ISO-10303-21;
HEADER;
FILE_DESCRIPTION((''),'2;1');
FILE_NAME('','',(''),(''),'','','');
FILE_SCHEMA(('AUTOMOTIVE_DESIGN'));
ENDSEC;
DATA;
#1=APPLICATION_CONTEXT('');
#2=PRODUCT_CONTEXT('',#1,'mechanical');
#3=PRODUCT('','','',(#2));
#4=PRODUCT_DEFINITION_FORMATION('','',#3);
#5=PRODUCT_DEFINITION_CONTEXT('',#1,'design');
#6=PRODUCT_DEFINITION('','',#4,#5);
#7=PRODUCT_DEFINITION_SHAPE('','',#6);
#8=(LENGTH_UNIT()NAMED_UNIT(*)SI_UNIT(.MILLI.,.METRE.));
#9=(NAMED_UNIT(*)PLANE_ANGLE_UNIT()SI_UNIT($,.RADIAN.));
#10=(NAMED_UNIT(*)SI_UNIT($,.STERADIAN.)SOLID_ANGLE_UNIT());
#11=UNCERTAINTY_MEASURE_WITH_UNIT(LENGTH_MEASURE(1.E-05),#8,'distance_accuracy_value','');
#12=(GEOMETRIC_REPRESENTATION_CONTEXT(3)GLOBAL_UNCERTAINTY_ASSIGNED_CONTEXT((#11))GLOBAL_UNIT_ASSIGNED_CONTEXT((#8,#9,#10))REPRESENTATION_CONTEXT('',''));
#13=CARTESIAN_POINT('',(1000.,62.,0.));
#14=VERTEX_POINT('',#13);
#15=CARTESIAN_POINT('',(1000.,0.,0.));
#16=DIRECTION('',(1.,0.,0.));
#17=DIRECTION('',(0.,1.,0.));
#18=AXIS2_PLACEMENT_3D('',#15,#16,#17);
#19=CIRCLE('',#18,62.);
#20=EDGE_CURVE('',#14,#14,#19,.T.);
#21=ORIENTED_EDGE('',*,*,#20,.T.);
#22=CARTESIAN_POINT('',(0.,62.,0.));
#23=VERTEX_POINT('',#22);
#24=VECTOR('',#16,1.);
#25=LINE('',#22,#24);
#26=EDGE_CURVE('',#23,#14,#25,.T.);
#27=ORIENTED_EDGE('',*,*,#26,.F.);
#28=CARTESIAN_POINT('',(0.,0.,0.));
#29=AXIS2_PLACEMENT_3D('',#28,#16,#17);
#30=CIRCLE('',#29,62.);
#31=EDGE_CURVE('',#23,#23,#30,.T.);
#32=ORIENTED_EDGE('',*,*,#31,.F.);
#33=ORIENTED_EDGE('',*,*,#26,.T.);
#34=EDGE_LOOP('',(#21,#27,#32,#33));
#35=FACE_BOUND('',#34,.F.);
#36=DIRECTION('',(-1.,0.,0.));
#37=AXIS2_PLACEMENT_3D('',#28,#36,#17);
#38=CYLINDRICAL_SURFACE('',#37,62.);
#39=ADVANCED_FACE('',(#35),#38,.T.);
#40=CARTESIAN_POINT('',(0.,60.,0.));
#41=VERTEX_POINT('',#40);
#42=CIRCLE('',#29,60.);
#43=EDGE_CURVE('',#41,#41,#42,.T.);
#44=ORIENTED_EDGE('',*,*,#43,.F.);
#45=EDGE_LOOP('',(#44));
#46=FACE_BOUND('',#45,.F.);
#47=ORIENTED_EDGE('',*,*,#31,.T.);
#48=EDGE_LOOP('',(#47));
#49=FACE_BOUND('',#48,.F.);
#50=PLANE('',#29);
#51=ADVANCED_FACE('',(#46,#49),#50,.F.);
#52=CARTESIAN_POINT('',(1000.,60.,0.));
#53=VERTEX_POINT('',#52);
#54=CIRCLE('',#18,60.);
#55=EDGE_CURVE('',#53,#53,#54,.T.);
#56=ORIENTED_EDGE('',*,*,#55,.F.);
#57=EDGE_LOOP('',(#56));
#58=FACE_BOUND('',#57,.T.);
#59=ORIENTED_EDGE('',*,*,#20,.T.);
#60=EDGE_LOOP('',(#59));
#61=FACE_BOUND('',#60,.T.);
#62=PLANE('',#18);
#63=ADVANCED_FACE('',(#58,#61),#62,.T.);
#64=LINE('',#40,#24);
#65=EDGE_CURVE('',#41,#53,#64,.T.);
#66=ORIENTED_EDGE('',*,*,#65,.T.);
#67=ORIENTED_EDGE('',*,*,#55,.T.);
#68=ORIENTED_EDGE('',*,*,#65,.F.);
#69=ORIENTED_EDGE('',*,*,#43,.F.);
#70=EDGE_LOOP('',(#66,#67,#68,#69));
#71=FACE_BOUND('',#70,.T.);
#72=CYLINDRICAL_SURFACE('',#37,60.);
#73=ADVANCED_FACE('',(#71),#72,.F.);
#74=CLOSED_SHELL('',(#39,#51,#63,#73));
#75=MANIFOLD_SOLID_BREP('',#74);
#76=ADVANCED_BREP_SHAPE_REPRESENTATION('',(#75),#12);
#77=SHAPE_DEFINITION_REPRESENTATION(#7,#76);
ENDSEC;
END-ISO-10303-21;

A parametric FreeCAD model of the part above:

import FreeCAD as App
import Part
import Sketcher
Q = App.Units.Quantity

doc = App.newDocument("Part")
body = doc.addObject("PartDesign::Body", "Body")

sketch1 = body.newObject("Sketcher::SketchObject", "Sketch")
sketch1.AttachmentSupport = (doc.getObject("YZ_Plane"), [""])
sketch1.MapMode = "FlatFace"
sketch1.addGeometry(Part.Circle(App.Vector(0, 0, 0), App.Vector(0, 0, 1), 62), False)
sketch1.addGeometry(Part.Circle(App.Vector(0, 0, 0), App.Vector(0, 0, 1), 60), False)
sketch1.addConstraint(Sketcher.Constraint("Coincident", 0, 3, -1, 1))
sketch1.addConstraint(Sketcher.Constraint("Coincident", 1, 3, -1, 1))
sketch1.addConstraint(Sketcher.Constraint("Diameter", 0, Q("124 mm")))
sketch1.addConstraint(Sketcher.Constraint("Diameter", 1, Q("120 mm")))
pad1 = body.newObject("PartDesign::Pad", "Pad")
pad1.Profile = sketch1
pad1.Length = 1000

doc.recompute()
